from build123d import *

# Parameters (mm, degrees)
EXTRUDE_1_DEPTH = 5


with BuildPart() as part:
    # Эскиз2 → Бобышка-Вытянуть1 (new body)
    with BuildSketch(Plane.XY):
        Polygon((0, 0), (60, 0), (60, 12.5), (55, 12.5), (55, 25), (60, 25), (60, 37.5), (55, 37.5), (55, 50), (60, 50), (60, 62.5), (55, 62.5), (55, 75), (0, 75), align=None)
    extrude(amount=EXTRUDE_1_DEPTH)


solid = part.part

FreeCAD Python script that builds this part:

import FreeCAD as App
import Part
import Sketcher

V = App.Vector

doc = App.newDocument("Part")
params = doc.addObject("Spreadsheet::Sheet", "Params")
for row, (alias, value) in enumerate([
    ("sketch1_width", "60 mm"),
    ("sketch1_width2", "5 mm"),
    ("sketch1_height", "75 mm"),
    ("pad1_length", "5 mm"),
], start=1):
    params.set(f"A{row}", alias)
    params.set(f"B{row}", "=" + value)
    params.setAlias(f"B{row}", alias)

body = doc.addObject("PartDesign::Body", "Body")

# Sketch on XY plane
sketch1 = body.newObject("Sketcher::SketchObject", "Sketch")
sketch1.AttachmentSupport = (doc.getObject("XY_Plane"), [""])
sketch1.MapMode = "FlatFace"
sketch1.addGeometry(Part.LineSegment(V(0, 0, 0), V(60, 0, 0)), False)
sketch1.addGeometry(Part.LineSegment(V(60, 0, 0), V(60, 12.5, 0)), False)
sketch1.addGeometry(Part.LineSegment(V(60, 12.5, 0), V(55, 12.5, 0)), False)
sketch1.addGeometry(Part.LineSegment(V(55, 12.5, 0), V(55, 25, 0)), False)
sketch1.addGeometry(Part.LineSegment(V(55, 25, 0), V(60, 25, 0)), False)
sketch1.addGeometry(Part.LineSegment(V(60, 25, 0), V(60, 37.5, 0)), False)
sketch1.addGeometry(Part.LineSegment(V(60, 37.5, 0), V(55, 37.5, 0)), False)
sketch1.addGeometry(Part.LineSegment(V(55, 37.5, 0), V(55, 50, 0)), False)
sketch1.addGeometry(Part.LineSegment(V(55, 50, 0), V(60, 50, 0)), False)
sketch1.addGeometry(Part.LineSegment(V(60, 50, 0), V(60, 62.5, 0)), False)
sketch1.addGeometry(Part.LineSegment(V(60, 62.5, 0), V(55, 62.5, 0)), False)
sketch1.addGeometry(Part.LineSegment(V(55, 62.5, 0), V(55, 75, 0)), False)
sketch1.addGeometry(Part.LineSegment(V(55, 75, 0), V(0, 75, 0)), False)
sketch1.addGeometry(Part.LineSegment(V(0, 75, 0), V(0, 0, 0)), False)
sketch1.addConstraint(Sketcher.Constraint("Coincident", 0, 2, 1, 1))
sketch1.addConstraint(Sketcher.Constraint("Coincident", 1, 2, 2, 1))
sketch1.addConstraint(Sketcher.Constraint("Coincident", 2, 2, 3, 1))
sketch1.addConstraint(Sketcher.Constraint("Coincident", 3, 2, 4, 1))
sketch1.addConstraint(Sketcher.Constraint("Coincident", 4, 2, 5, 1))
sketch1.addConstraint(Sketcher.Constraint("Coincident", 5, 2, 6, 1))
sketch1.addConstraint(Sketcher.Constraint("Coincident", 6, 2, 7, 1))
sketch1.addConstraint(Sketcher.Constraint("Coincident", 7, 2, 8, 1))
sketch1.addConstraint(Sketcher.Constraint("Coincident", 8, 2, 9, 1))
sketch1.addConstraint(Sketcher.Constraint("Coincident", 9, 2, 10, 1))
sketch1.addConstraint(Sketcher.Constraint("Coincident", 10, 2, 11, 1))
sketch1.addConstraint(Sketcher.Constraint("Coincident", 11, 2, 12, 1))
sketch1.addConstraint(Sketcher.Constraint("Coincident", 12, 2, 13, 1))
sketch1.addConstraint(Sketcher.Constraint("Coincident", 13, 2, 0, 1))
sketch1.addConstraint(Sketcher.Constraint("Horizontal", 0))
sketch1.addConstraint(Sketcher.Constraint("Vertical", 1))
sketch1.addConstraint(Sketcher.Constraint("Horizontal", 2))
sketch1.addConstraint(Sketcher.Constraint("Vertical", 3))
sketch1.addConstraint(Sketcher.Constraint("Horizontal", 4))
sketch1.addConstraint(Sketcher.Constraint("Vertical", 5))
sketch1.addConstraint(Sketcher.Constraint("Horizontal", 6))
sketch1.addConstraint(Sketcher.Constraint("Vertical", 7))
sketch1.addConstraint(Sketcher.Constraint("Horizontal", 8))
sketch1.addConstraint(Sketcher.Constraint("Vertical", 9))
sketch1.addConstraint(Sketcher.Constraint("Horizontal", 10))
sketch1.addConstraint(Sketcher.Constraint("Vertical", 11))
sketch1.addConstraint(Sketcher.Constraint("Horizontal", 12))
sketch1.addConstraint(Sketcher.Constraint("Vertical", 13))
sketch1.addConstraint(Sketcher.Constraint("Coincident", 13, 2, -1, 1))
sketch1.addConstraint(Sketcher.Constraint("Vertical", 1, 2, 4, 2))
sketch1.addConstraint(Sketcher.Constraint("Vertical", 3, 2, 6, 2))
sketch1.addConstraint(Sketcher.Constraint("Vertical", 5, 2, 8, 2))
sketch1.addConstraint(Sketcher.Constraint("Vertical", 7, 2, 10, 2))
sketch1.addConstraint(Sketcher.Constraint("Equal", 1, 3))
sketch1.addConstraint(Sketcher.Constraint("Equal", 3, 5))
sketch1.addConstraint(Sketcher.Constraint("Equal", 5, 7))
sketch1.addConstraint(Sketcher.Constraint("Equal", 7, 9))
sketch1.addConstraint(Sketcher.Constraint("Equal", 9, 11))
sketch1.addConstraint(Sketcher.Constraint("DistanceX", 0, 1, 0, 2, 60.0))
sketch1.addConstraint(Sketcher.Constraint("DistanceX", 2, 2, 2, 1, 5.0))
sketch1.addConstraint(Sketcher.Constraint("DistanceY", 13, 2, 13, 1, 75.0))
sketch1.setExpression("Constraints[38]", "Params.sketch1_width")
sketch1.setExpression("Constraints[39]", "Params.sketch1_width2")
sketch1.setExpression("Constraints[40]", "Params.sketch1_height")
pad1 = body.newObject("PartDesign::Pad", "Pad")
pad1.Profile = sketch1
pad1.setExpression("Length", "Params.pad1_length")

doc.recompute()
